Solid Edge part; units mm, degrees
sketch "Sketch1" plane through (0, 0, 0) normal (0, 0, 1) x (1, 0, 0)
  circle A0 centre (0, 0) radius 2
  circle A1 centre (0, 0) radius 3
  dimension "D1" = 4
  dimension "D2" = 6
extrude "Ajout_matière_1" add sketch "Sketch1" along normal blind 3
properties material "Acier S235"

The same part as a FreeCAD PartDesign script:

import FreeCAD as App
import Part
import Sketcher
from FreeCAD import Vector

doc = App.newDocument("Part")
body = doc.addObject("PartDesign::Body", "Body")

# Sketch on XY plane
sketch1 = doc.addObject("Sketcher::SketchObject", "Sketch")
body.addObject(sketch1)
sketch1.AttachmentSupport = (doc.XY_Plane, [""])
sketch1.MapMode = "FlatFace"
sketch1.addGeometry([
    Part.Circle(Vector(0, 0, 0), Vector(0, 0, 1), 3),
    Part.Circle(Vector(0, 0, 0), Vector(0, 0, 1), 2),
], False)
sketch1.addConstraint([
    Sketcher.Constraint("Coincident", 0, 3, -1, 1),
    Sketcher.Constraint("Coincident", 1, 3, -1, 1),
    Sketcher.Constraint("Diameter", 0, 6.0),
    Sketcher.Constraint("Diameter", 1, 4.0),
])
pad1 = doc.addObject("PartDesign::Pad", "Pad")
body.addObject(pad1)
pad1.Profile = sketch1
pad1.Length = 3

doc.recompute()
